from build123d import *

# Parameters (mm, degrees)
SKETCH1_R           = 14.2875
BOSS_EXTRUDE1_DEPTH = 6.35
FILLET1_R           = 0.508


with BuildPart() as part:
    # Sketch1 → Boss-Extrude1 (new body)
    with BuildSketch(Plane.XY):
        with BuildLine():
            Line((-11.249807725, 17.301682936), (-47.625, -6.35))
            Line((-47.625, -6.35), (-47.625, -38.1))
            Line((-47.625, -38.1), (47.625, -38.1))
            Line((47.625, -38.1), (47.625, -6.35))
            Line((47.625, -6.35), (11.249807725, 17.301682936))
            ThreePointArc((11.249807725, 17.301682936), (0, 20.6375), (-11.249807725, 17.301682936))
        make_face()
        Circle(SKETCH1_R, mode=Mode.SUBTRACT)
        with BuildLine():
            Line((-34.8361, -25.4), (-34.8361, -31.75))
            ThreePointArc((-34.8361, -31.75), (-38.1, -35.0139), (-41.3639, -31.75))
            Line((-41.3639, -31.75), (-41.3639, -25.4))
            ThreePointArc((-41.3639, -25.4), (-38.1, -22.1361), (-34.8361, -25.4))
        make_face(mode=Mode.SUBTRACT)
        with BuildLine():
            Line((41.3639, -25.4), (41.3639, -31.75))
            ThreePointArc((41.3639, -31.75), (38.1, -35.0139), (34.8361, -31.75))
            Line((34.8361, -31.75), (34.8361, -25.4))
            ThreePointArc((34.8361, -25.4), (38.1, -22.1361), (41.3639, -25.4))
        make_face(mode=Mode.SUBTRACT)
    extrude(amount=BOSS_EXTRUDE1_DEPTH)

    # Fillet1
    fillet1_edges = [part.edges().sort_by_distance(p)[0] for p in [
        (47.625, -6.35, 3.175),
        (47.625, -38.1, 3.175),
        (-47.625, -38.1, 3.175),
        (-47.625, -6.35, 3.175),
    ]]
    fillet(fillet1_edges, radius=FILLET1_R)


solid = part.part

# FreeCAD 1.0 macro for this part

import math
import FreeCAD as App
import Part
import Sketcher
Q = App.Units.Quantity


def edges_at(feature, points):
    """Names of the edges that pass closest to the given points."""
    edges = feature.Shape.Edges
    near = lambda p: min(range(len(edges)), key=lambda i: edges[i].distToShape(Part.Vertex(*p))[0])
    return sorted({f"Edge{near(p) + 1}" for p in points})

doc = App.newDocument("Part")
body = doc.addObject("PartDesign::Body", "Body")

# Sketch on XY plane
sketch1 = body.newObject("Sketcher::SketchObject", "Sketch")
sketch1.AttachmentSupport = (doc.getObject("XY_Plane"), [""])
sketch1.MapMode = "FlatFace"
sketch1.addGeometry([
    Part.LineSegment(App.Vector(-11.249808, 17.301683, 0), App.Vector(-47.625, -6.35, 0)),  # 0
    Part.LineSegment(App.Vector(-47.625, -6.35, 0), App.Vector(-47.625, -38.1, 0)),  # 1
    Part.LineSegment(App.Vector(-47.625, -38.1, 0), App.Vector(47.625, -38.1, 0)),  # 2
    Part.LineSegment(App.Vector(47.625, -38.1, 0), App.Vector(47.625, -6.35, 0)),  # 3
    Part.LineSegment(App.Vector(47.625, -6.35, 0), App.Vector(11.249808, 17.301683, 0)),  # 4
    Part.ArcOfCircle(Part.Circle(App.Vector(0, 0, 0), App.Vector(0, 0, 1), 20.6375), math.radians(56.967488), math.radians(123.032512)),  # 5
    Part.ArcOfCircle(Part.Circle(App.Vector(-38.1, -25.4, 0), App.Vector(0, 0, 1), 3.2639), math.radians(0), math.radians(180)),  # 6
    Part.LineSegment(App.Vector(-34.8361, -25.4, 0), App.Vector(-34.8361, -31.75, 0)),  # 7
    Part.ArcOfCircle(Part.Circle(App.Vector(-38.1, -31.75, 0), App.Vector(0, 0, 1), 3.2639), math.radians(180), math.radians(360)),  # 8
    Part.LineSegment(App.Vector(-41.3639, -31.75, 0), App.Vector(-41.3639, -25.4, 0)),  # 9
    Part.ArcOfCircle(Part.Circle(App.Vector(38.1, -25.4, 0), App.Vector(0, 0, 1), 3.2639), math.radians(0), math.radians(180)),  # 10
    Part.LineSegment(App.Vector(41.3639, -25.4, 0), App.Vector(41.3639, -31.75, 0)),  # 11
    Part.ArcOfCircle(Part.Circle(App.Vector(38.1, -31.75, 0), App.Vector(0, 0, 1), 3.2639), math.radians(180), math.radians(360)),  # 12
    Part.LineSegment(App.Vector(34.8361, -31.75, 0), App.Vector(34.8361, -25.4, 0)),  # 13
    Part.Circle(App.Vector(0, 0, 0), App.Vector(0, 0, 1), 14.2875),  # 14
], False)
sketch1.addConstraint([
    Sketcher.Constraint("Coincident", 0, 2, 1, 1),
    Sketcher.Constraint("Coincident", 1, 2, 2, 1),
    Sketcher.Constraint("Coincident", 2, 2, 3, 1),
    Sketcher.Constraint("Coincident", 3, 2, 4, 1),
    Sketcher.Constraint("Tangent", 4, 2, 5, 1),
    Sketcher.Constraint("Tangent", 5, 2, 0, 1),
    Sketcher.Constraint("Tangent", 6, 1, 7, 1),
    Sketcher.Constraint("Tangent", 7, 2, 8, 2),
    Sketcher.Constraint("Tangent", 8, 1, 9, 1),
    Sketcher.Constraint("Tangent", 9, 2, 6, 2),
    Sketcher.Constraint("Tangent", 10, 1, 11, 1),
    Sketcher.Constraint("Tangent", 11, 2, 12, 2),
    Sketcher.Constraint("Tangent", 12, 1, 13, 1),
    Sketcher.Constraint("Tangent", 13, 2, 10, 2),
    Sketcher.Constraint("Vertical", 1),
    Sketcher.Constraint("Horizontal", 2),
    Sketcher.Constraint("Vertical", 3),
    Sketcher.Constraint("Vertical", 7),
    Sketcher.Constraint("Vertical", 9),
    Sketcher.Constraint("Vertical", 11),
    Sketcher.Constraint("Vertical", 13),
    Sketcher.Constraint("Coincident", 5, 3, -1, 1),
    Sketcher.Constraint("Coincident", 14, 3, -1, 1),
    Sketcher.Constraint("Equal", 8, 10),
    Sketcher.Constraint("Symmetric", 6, 3, 10, 3, -2),
    Sketcher.Constraint("Symmetric", 0, 2, 3, 2, -2),
    Sketcher.Constraint("Horizontal", 8, 3, 12, 3),
    Sketcher.Constraint("Diameter", 14, Q("1.125 in")),
    Sketcher.Constraint("DistanceY", 6, 3, -1, 1, Q("1 in")),
    Sketcher.Constraint("Radius", 5, Q("0.8125 in")),
    Sketcher.Constraint("DistanceX", 6, 3, 10, 3, Q("3 in")),
    Sketcher.Constraint("DistanceY", 8, 3, 0, 2, Q("1 in")),
    Sketcher.Constraint("DistanceX", 2, 1, 2, 2, Q("3.75 in")),
    Sketcher.Constraint("DistanceY", 1, 2, 1, 1, Q("1.25 in")),
    Sketcher.Constraint("DistanceY", 7, 2, 7, 1, Q("0.25 in")),
    Sketcher.Constraint("Radius", 6, Q("0.1285 in")),
])
pad1 = body.newObject("PartDesign::Pad", "Pad")
pad1.Profile = sketch1
pad1.Length = Q("0.25 in")
doc.recompute()

fillet = body.newObject("PartDesign::Fillet", "Fillet")
fillet.Base = (pad1, edges_at(pad1, [
    (47.625, -6.35, 3.175),
    (47.625, -38.1, 3.175),
    (-47.625, -38.1, 3.175),
    (-47.625, -6.35, 3.175),
]))
fillet.Radius = Q("0.02 in")

doc.recompute()
